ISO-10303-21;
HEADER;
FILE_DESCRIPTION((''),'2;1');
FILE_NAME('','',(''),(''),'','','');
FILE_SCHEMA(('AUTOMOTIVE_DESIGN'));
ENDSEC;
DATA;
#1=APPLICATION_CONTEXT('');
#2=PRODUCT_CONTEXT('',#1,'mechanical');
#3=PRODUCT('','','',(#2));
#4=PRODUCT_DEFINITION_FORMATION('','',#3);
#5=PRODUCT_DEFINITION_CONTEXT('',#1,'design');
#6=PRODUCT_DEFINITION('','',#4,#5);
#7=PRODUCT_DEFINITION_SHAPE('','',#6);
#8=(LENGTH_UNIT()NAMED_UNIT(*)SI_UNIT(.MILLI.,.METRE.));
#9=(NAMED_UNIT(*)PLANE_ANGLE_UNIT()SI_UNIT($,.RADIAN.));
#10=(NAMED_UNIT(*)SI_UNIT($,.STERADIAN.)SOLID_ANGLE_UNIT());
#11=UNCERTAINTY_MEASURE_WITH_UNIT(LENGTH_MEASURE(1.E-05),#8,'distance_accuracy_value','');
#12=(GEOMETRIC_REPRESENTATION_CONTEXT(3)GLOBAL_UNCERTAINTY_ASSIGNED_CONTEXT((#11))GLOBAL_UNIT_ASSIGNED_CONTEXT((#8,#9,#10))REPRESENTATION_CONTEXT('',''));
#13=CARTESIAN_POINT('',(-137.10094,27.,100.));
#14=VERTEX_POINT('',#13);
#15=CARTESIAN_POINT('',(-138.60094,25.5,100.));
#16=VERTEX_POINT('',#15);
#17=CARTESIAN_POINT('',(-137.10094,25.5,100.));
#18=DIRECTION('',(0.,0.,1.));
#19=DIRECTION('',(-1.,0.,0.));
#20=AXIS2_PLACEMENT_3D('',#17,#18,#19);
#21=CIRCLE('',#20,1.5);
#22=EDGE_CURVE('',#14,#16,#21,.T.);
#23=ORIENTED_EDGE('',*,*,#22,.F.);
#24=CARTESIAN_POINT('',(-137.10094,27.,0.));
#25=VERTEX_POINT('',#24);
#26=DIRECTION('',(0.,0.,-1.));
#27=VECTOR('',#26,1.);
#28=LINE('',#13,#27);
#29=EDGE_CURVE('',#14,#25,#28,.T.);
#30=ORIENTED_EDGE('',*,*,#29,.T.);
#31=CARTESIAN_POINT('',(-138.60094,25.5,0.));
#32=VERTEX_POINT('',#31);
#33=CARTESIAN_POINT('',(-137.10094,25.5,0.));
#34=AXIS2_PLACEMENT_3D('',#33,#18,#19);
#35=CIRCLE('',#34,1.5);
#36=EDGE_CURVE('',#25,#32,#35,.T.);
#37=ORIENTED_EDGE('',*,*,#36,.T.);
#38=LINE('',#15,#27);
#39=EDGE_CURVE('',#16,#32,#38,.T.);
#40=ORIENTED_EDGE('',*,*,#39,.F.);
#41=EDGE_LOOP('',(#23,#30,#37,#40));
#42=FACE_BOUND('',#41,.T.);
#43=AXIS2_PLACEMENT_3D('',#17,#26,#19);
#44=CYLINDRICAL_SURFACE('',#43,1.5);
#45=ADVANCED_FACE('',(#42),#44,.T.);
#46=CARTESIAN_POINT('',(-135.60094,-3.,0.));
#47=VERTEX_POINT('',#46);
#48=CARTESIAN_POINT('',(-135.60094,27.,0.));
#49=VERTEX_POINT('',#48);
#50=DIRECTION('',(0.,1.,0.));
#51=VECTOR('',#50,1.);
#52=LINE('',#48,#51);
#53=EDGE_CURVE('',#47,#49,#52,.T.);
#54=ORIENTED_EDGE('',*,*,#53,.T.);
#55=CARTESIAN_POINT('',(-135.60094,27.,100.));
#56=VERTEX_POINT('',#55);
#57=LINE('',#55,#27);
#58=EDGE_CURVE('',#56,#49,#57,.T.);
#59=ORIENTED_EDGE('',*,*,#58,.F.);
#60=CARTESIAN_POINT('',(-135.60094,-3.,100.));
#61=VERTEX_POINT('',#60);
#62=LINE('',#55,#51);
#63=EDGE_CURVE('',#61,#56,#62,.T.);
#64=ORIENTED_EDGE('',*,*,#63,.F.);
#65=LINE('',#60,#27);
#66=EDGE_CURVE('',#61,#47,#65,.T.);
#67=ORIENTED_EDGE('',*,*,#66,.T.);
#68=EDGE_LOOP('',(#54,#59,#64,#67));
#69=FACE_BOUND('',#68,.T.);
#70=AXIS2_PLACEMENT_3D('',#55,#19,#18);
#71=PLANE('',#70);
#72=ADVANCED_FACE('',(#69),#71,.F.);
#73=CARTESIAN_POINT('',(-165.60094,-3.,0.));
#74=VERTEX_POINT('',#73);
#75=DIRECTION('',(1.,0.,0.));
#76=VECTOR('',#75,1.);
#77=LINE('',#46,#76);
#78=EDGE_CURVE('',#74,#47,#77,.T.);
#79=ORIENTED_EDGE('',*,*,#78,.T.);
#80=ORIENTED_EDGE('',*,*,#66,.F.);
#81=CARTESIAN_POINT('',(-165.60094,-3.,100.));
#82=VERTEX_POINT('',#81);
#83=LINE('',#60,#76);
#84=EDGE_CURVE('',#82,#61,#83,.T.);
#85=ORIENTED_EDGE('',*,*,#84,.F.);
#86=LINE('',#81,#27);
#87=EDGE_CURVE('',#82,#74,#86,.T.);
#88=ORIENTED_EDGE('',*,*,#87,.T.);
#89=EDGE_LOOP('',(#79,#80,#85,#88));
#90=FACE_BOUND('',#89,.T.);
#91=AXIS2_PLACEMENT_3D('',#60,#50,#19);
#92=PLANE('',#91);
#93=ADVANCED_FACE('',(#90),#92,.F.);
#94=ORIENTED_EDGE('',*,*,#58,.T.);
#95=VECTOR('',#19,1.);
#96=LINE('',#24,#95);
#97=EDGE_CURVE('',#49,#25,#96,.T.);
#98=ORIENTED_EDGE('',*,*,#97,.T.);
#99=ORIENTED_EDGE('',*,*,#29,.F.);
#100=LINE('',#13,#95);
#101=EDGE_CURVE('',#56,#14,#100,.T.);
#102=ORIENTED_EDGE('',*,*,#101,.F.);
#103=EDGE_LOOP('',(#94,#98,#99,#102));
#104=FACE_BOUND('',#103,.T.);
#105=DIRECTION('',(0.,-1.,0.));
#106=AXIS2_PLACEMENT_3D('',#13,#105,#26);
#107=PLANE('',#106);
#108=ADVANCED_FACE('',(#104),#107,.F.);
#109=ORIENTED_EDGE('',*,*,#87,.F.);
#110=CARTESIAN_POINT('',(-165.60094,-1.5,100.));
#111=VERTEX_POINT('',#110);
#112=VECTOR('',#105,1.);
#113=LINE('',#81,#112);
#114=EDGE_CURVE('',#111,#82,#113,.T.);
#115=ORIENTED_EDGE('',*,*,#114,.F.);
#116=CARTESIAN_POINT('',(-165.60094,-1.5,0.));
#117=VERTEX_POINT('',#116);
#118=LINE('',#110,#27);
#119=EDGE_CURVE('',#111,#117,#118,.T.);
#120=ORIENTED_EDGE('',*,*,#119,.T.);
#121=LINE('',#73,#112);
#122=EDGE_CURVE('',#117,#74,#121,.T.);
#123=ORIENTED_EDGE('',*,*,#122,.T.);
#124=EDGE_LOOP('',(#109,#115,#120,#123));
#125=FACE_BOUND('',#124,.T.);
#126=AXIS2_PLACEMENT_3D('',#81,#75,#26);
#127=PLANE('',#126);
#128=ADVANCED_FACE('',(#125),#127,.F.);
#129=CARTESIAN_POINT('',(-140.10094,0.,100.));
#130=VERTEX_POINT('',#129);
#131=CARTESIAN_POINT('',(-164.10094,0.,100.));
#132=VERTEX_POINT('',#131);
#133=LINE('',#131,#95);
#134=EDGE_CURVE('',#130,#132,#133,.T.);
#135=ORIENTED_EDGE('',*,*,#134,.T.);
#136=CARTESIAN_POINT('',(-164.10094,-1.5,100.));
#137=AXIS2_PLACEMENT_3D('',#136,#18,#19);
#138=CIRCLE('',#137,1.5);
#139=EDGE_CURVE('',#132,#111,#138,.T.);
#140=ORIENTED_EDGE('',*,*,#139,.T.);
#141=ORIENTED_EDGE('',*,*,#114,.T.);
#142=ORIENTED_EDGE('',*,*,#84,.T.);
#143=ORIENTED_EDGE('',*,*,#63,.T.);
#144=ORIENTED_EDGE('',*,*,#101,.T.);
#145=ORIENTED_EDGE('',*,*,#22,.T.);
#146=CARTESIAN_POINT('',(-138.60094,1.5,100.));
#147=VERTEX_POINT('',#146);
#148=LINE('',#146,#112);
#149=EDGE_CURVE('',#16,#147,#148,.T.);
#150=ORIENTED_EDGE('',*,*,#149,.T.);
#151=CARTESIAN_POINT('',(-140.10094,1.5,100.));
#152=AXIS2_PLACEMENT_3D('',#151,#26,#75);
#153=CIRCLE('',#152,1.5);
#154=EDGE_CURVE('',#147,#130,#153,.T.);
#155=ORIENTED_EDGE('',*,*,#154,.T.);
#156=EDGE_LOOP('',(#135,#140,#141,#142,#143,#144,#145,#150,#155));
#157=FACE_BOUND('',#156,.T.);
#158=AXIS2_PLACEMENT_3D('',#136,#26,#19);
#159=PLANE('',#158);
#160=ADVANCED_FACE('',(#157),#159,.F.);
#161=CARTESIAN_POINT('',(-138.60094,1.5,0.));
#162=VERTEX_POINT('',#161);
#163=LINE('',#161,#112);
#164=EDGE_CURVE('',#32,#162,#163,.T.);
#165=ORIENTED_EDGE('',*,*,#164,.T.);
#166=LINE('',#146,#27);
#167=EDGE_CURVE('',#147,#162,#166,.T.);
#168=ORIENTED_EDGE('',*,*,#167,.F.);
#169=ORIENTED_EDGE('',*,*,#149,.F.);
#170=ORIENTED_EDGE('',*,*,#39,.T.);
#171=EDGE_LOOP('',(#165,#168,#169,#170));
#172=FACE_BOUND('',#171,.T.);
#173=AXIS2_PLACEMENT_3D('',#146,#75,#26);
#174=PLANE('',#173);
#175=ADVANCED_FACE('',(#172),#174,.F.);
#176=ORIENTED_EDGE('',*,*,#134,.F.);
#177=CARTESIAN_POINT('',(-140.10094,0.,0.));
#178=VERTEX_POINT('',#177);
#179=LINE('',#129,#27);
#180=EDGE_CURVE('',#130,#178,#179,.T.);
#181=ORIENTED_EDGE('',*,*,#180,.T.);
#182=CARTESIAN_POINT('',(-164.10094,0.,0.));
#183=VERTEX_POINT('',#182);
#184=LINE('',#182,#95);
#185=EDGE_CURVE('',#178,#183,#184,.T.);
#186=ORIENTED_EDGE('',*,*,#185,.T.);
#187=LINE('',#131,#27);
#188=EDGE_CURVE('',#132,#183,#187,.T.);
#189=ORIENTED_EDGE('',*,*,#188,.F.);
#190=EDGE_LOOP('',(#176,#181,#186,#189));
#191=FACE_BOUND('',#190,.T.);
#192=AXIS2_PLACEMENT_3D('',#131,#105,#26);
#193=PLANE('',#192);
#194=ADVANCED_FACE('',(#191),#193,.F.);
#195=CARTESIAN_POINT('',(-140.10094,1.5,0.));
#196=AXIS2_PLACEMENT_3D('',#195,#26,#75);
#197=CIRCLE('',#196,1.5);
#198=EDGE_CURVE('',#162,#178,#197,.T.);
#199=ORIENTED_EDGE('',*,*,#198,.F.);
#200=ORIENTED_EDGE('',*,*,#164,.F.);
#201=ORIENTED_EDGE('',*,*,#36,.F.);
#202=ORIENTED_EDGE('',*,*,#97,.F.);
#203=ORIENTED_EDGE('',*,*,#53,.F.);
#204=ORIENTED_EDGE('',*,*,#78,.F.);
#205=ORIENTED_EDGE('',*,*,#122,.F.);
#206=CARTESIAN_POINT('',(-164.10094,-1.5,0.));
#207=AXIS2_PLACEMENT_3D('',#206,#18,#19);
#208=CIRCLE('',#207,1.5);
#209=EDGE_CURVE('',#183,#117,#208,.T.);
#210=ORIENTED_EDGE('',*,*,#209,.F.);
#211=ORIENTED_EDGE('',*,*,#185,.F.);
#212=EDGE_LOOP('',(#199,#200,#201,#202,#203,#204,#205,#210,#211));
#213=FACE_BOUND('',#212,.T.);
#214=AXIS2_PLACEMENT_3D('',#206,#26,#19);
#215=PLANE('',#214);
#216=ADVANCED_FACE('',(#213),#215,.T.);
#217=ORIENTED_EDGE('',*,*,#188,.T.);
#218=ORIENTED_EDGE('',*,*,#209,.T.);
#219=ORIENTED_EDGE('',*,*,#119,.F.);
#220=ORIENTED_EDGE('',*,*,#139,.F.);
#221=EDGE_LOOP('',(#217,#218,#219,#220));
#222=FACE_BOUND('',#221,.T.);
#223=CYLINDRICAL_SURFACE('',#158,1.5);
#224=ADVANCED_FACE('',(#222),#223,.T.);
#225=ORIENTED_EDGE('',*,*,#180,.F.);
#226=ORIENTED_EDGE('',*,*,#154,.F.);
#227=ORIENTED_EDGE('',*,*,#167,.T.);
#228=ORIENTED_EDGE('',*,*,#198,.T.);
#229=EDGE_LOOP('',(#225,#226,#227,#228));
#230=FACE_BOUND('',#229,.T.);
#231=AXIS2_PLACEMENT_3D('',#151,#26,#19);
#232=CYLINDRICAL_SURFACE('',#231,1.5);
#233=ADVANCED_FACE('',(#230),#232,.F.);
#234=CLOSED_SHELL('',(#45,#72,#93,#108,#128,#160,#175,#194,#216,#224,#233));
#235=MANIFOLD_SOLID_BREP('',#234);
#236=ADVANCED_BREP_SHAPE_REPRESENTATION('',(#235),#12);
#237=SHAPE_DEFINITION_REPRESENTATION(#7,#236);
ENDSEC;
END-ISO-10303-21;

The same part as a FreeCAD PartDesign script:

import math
import FreeCAD as App
import Part
import Sketcher

V = App.Vector
Q = App.Units.Quantity

doc = App.newDocument("Part")
body = doc.addObject("PartDesign::Body", "Body")

sketch1 = body.newObject("Sketcher::SketchObject", "Sketch")
sketch1.AttachmentSupport = (doc.getObject("XY_Plane"), [""])
sketch1.MapMode = "FlatFace"
sketch1.addGeometry([
    Part.LineSegment(V(-135.6, -3, 0), V(-135.6, 27, 0)),
    Part.LineSegment(V(-135.6, 27, 0), V(-137.1, 27, 0)),
    Part.ArcOfCircle(Part.Circle(V(-137.1, 25.5, 0), V(0, 0, 1), 1.5), math.radians(90), math.radians(180)),
    Part.LineSegment(V(-138.6, 25.5, 0), V(-138.6, 1.5, 0)),
    Part.ArcOfCircle(Part.Circle(V(-140.1, 1.5, 0), V(0, 0, 1), 1.5), math.radians(-90), math.radians(0)),
    Part.LineSegment(V(-140.1, 0, 0), V(-164.1, 0, 0)),
    Part.ArcOfCircle(Part.Circle(V(-164.1, -1.5, 0), V(0, 0, 1), 1.5), math.radians(90), math.radians(180)),
    Part.LineSegment(V(-165.6, -1.5, 0), V(-165.6, -3, 0)),
    Part.LineSegment(V(-165.6, -3, 0), V(-135.6, -3, 0)),
], False)
sketch1.addConstraint([
    Sketcher.Constraint("Coincident", 0, 2, 1, 1),
    Sketcher.Constraint("Tangent", 1, 2, 2, 1),
    Sketcher.Constraint("Tangent", 2, 2, 3, 1),
    Sketcher.Constraint("Tangent", 3, 2, 4, 2),
    Sketcher.Constraint("Tangent", 4, 1, 5, 1),
    Sketcher.Constraint("Tangent", 5, 2, 6, 1),
    Sketcher.Constraint("Tangent", 6, 2, 7, 1),
    Sketcher.Constraint("Coincident", 7, 2, 8, 1),
    Sketcher.Constraint("Coincident", 8, 2, 0, 1),
    Sketcher.Constraint("Vertical", 0),
    Sketcher.Constraint("Horizontal", 1),
    Sketcher.Constraint("Vertical", 3),
    Sketcher.Constraint("Horizontal", 5),
    Sketcher.Constraint("Vertical", 7),
    Sketcher.Constraint("Horizontal", 8),
    Sketcher.Constraint("Equal", 2, 4),
    Sketcher.Constraint("Equal", 4, 6),
    Sketcher.Constraint("PointOnObject", 4, 1, -1),
    Sketcher.Constraint("Equal", 8, 0),
    Sketcher.Constraint("Equal", 5, 3),
    Sketcher.Constraint("Radius", 2, Q("1.5 mm")),
    Sketcher.Constraint("DistanceX", 5, 2, 5, 1, Q("24 mm")),
    Sketcher.Constraint("DistanceX", 8, 1, 8, 2, Q("30 mm")),
    Sketcher.Constraint("DistanceX", 2, 3, -1, 1, Q("137.10094 mm")),
])
pad1 = body.newObject("PartDesign::Pad", "Pad")
pad1.Profile = sketch1
pad1.Length = 100

doc.recompute()
